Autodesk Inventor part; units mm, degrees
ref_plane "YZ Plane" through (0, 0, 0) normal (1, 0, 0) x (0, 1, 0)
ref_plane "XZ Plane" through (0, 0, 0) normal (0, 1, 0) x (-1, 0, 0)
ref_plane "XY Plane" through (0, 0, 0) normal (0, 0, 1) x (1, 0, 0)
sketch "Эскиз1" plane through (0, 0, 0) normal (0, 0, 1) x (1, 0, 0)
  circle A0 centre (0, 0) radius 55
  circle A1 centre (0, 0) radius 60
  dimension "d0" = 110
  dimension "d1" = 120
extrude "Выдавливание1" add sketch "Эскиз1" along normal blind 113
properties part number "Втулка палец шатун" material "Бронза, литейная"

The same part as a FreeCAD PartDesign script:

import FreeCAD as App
import Part
import Sketcher
Q = App.Units.Quantity

doc = App.newDocument("Part")
body = doc.addObject("PartDesign::Body", "Body")

# Sketch on XY plane
sketch1 = body.newObject("Sketcher::SketchObject", "Sketch")
sketch1.AttachmentSupport = (doc.getObject("XY_Plane"), [""])
sketch1.MapMode = "FlatFace"
sketch1.addGeometry(Part.Circle(App.Vector(0, 0, 0), App.Vector(0, 0, 1), 60), False)
sketch1.addGeometry(Part.Circle(App.Vector(0, 0, 0), App.Vector(0, 0, 1), 55), False)
sketch1.addConstraint(Sketcher.Constraint("Coincident", 0, 3, -1, 1))
sketch1.addConstraint(Sketcher.Constraint("Coincident", 1, 3, -1, 1))
sketch1.addConstraint(Sketcher.Constraint("Diameter", 0, Q("120 mm")))
sketch1.addConstraint(Sketcher.Constraint("Diameter", 1, Q("110 mm")))
pad1 = body.newObject("PartDesign::Pad", "Pad")
pad1.Profile = sketch1
pad1.Length = 113

doc.recompute()
